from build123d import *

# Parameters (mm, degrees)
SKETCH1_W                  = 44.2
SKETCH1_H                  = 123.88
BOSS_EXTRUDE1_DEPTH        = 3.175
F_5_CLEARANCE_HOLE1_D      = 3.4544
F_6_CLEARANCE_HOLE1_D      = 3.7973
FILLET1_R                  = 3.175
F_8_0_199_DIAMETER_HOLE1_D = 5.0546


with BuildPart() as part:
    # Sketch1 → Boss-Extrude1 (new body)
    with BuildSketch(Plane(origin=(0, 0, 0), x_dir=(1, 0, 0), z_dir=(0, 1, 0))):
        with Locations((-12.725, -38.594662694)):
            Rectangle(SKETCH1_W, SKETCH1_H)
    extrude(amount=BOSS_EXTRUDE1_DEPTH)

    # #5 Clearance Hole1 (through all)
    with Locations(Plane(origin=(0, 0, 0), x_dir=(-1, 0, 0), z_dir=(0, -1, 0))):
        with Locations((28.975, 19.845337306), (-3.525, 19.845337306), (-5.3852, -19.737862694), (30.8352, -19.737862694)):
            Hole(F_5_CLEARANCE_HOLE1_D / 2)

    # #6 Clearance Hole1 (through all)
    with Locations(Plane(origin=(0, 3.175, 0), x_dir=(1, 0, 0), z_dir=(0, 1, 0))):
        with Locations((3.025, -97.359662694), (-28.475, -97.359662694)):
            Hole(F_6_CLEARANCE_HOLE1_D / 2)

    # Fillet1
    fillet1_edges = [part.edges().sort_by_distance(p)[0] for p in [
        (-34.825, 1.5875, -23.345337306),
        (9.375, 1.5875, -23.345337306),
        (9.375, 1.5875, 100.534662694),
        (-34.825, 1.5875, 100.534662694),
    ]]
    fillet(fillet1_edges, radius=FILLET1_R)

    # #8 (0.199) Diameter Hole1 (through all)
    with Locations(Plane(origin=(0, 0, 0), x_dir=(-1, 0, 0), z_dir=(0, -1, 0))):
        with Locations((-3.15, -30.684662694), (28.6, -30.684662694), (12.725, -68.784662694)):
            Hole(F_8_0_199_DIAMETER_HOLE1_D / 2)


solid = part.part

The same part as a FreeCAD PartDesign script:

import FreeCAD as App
import Part
import Sketcher
from FreeCAD import Vector
Q = App.Units.Quantity


def edges_at(feature, points):
    """Names of the edges that pass closest to the given points."""
    edges = feature.Shape.Edges
    near = lambda p: min(range(len(edges)), key=lambda i: edges[i].distToShape(Part.Vertex(*p))[0])
    return sorted({f"Edge{near(p) + 1}" for p in points})


def add_polygon(sketch, points):
    """Adds a closed chain of lines whose ends are joined by coincident constraints."""
    first, n = sketch.GeometryCount, len(points)
    for a, b in zip(points, points[1:] + points[:1]):
        sketch.addGeometry(Part.LineSegment(App.Vector(*a, 0), App.Vector(*b, 0)), False)
    for i in range(n):
        sketch.addConstraint(Sketcher.Constraint("Coincident", first + i, 2, first + (i + 1) % n, 1))

doc = App.newDocument("Part")
body = doc.addObject("PartDesign::Body", "Body")

# Sketch on XZ plane
sketch1 = doc.addObject("Sketcher::SketchObject", "Sketch")
body.addObject(sketch1)
sketch1.AttachmentSupport = (doc.XZ_Plane, [""])
sketch1.MapMode = "FlatFace"
add_polygon(sketch1, [(-34.825, -23.345337), (-34.825, 100.534663), (9.375, 100.534663), (9.375, -23.345337)])  # lines 0-3
sketch1.addConstraint([
    Sketcher.Constraint("Vertical", 0),
    Sketcher.Constraint("Horizontal", 1),
    Sketcher.Constraint("Vertical", 2),
    Sketcher.Constraint("Horizontal", 3),
    Sketcher.Constraint("DistanceX", 1, 1, 1, 2, Q("44.2 mm")),
    Sketcher.Constraint("DistanceY", 0, 1, 0, 2, Q("123.88 mm")),
    Sketcher.Constraint("DistanceX", 0, 2, -1, 1, Q("34.825 mm")),
    Sketcher.Constraint("DistanceY", -1, 1, 0, 2, Q("100.534663 mm")),
])
pad1 = doc.addObject("PartDesign::Pad", "Pad")
body.addObject(pad1)
pad1.Profile = sketch1
pad1.Length = Q("0.125 in")
pad1.Reversed = True

# Sketch on XZ plane
sketch2 = doc.addObject("Sketcher::SketchObject", "Sketch001")
body.addObject(sketch2)
sketch2.AttachmentSupport = (doc.XZ_Plane, [""])
sketch2.MapMode = "FlatFace"
sketch2.addGeometry([
    Part.Circle(Vector(-28.975, -19.845337, 0), Vector(0, 0, 1), 1.7272),
    Part.Circle(Vector(3.525, -19.845337, 0), Vector(0, 0, 1), 1.7272),
    Part.Circle(Vector(5.3852, 19.737863, 0), Vector(0, 0, 1), 1.7272),
    Part.Circle(Vector(-30.8352, 19.737863, 0), Vector(0, 0, 1), 1.7272),
], False)
sketch2.addConstraint([
    Sketcher.Constraint("Equal", 0, 1),
    Sketcher.Constraint("Equal", 1, 2),
    Sketcher.Constraint("Equal", 2, 3),
    Sketcher.Constraint("Horizontal", 0, 3, 1, 3),
    Sketcher.Constraint("Horizontal", 2, 3, 3, 3),
    Sketcher.Constraint("Diameter", 0, Q("0.136 in")),
    Sketcher.Constraint("DistanceX", 3, 3, 2, 3, Q("1.426 in")),
    Sketcher.Constraint("DistanceX", 0, 3, -1, 1, Q("28.975 mm")),
    Sketcher.Constraint("DistanceX", -1, 1, 1, 3, Q("3.525 mm")),
    Sketcher.Constraint("DistanceX", -1, 1, 2, 3, Q("5.3852 mm")),
    Sketcher.Constraint("DistanceY", 1, 3, 2, 3, Q("39.5832 mm")),
    Sketcher.Constraint("DistanceY", 0, 3, -1, 1, Q("19.845337 mm")),
])
doc.recompute()
hole = doc.addObject("PartDesign::Hole", "Hole")
body.addObject(hole)
hole.Profile = sketch2
hole.ThreadType = "None"
hole.Diameter = Q("0.136 in")
hole.DepthType = "ThroughAll"

# Sketch on XZ plane
sketch3 = doc.addObject("Sketcher::SketchObject", "Sketch002")
body.addObject(sketch3)
sketch3.AttachmentSupport = (doc.XZ_Plane, [""])
sketch3.MapMode = "FlatFace"
sketch3.AttachmentOffset = App.Placement(Vector(0, 0, -0.125 * 25.4), App.Rotation())
sketch3.addGeometry([
    Part.Circle(Vector(3.025, 97.359663, 0), Vector(0, 0, 1), 1.89865),
    Part.Circle(Vector(-28.475, 97.359663, 0), Vector(0, 0, 1), 1.89865),
], False)
sketch3.addConstraint([
    Sketcher.Constraint("Equal", 0, 1),
    Sketcher.Constraint("Horizontal", 0, 3, 1, 3),
    Sketcher.Constraint("Diameter", 0, Q("0.1495 in")),
    Sketcher.Constraint("DistanceX", -1, 1, 0, 3, Q("3.025 mm")),
    Sketcher.Constraint("DistanceX", 1, 3, -1, 1, Q("28.475 mm")),
    Sketcher.Constraint("DistanceY", -1, 1, 0, 3, Q("97.359663 mm")),
])
doc.recompute()
hole2 = doc.addObject("PartDesign::Hole", "Hole001")
body.addObject(hole2)
hole2.Profile = sketch3
hole2.ThreadType = "None"
hole2.Diameter = Q("0.1495 in")
hole2.DepthType = "ThroughAll"
hole2.Reversed = True
doc.recompute()

fillet = doc.addObject("PartDesign::Fillet", "Fillet")
body.addObject(fillet)
fillet.Base = (hole2, edges_at(hole2, [
    (-34.825, 1.587, -23.345),
    (9.375, 1.587, -23.345),
    (9.375, 1.587, 100.535),
    (-34.825, 1.587, 100.535),
]))
fillet.Radius = Q("0.125 in")

# Sketch on XZ plane
sketch4 = doc.addObject("Sketcher::SketchObject", "Sketch003")
body.addObject(sketch4)
sketch4.AttachmentSupport = (doc.XZ_Plane, [""])
sketch4.MapMode = "FlatFace"
sketch4.addGeometry([
    Part.Circle(Vector(3.15, 30.684663, 0), Vector(0, 0, 1), 2.5273),
    Part.Circle(Vector(-28.6, 30.684663, 0), Vector(0, 0, 1), 2.5273),
    Part.Circle(Vector(-12.725, 68.784663, 0), Vector(0, 0, 1), 2.5273),
], False)
sketch4.addConstraint([
    Sketcher.Constraint("Equal", 0, 1),
    Sketcher.Constraint("Equal", 1, 2),
    Sketcher.Constraint("Horizontal", 0, 3, 1, 3),
    Sketcher.Constraint("Diameter", 0, Q("0.199 in")),
    Sketcher.Constraint("DistanceY", 0, 3, 2, 3, Q("1.5 in")),
    Sketcher.Constraint("DistanceX", 1, 3, 0, 3, Q("1.25 in")),
    Sketcher.Constraint("DistanceX", 2, 3, 0, 3, Q("0.625 in")),
    Sketcher.Constraint("DistanceX", -1, 1, 0, 3, Q("3.15 mm")),
    Sketcher.Constraint("DistanceY", -1, 1, 0, 3, Q("30.684663 mm")),
])
doc.recompute()
hole3 = doc.addObject("PartDesign::Hole", "Hole002")
body.addObject(hole3)
hole3.Profile = sketch4
hole3.ThreadType = "None"
hole3.Diameter = Q("0.199 in")
hole3.DepthType = "ThroughAll"

doc.recompute()
